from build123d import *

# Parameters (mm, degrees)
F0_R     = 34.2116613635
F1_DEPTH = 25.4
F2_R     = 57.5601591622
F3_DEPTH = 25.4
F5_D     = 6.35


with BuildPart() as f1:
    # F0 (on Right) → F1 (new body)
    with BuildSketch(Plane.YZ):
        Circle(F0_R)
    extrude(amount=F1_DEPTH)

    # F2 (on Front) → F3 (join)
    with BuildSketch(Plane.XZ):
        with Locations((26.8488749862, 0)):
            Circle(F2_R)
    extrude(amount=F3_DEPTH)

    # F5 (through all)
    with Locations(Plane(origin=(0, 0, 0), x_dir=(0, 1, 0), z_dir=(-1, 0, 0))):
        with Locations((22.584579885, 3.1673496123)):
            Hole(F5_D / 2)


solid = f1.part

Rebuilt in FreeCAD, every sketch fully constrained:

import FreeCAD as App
import Part
import Sketcher
from FreeCAD import Vector
Q = App.Units.Quantity

doc = App.newDocument("Part")
params = doc.addObject("Spreadsheet::Sheet", "Params")
for row, (alias, value) in enumerate([
    ("pad1_length", "1 in"),
    ("pad2_length", "1 in"),
    ("sketch3_diameter", "0.25 in"),
    ("hole_diameter", "0.25 in"),
], start=1):
    params.set(f"A{row}", alias)
    params.set(f"B{row}", "=" + value)
    params.setAlias(f"B{row}", alias)

body = doc.addObject("PartDesign::Body", "Body")

sketch1 = doc.addObject("Sketcher::SketchObject", "Sketch")
body.addObject(sketch1)
sketch1.AttachmentSupport = (doc.YZ_Plane, [""])
sketch1.MapMode = "FlatFace"
sketch1.addGeometry(Part.Circle(Vector(0, 0, 0), Vector(0, 0, 1), 34), False)
sketch1.addConstraint(Sketcher.Constraint("Coincident", 0, 3, -1, 1))
sketch1.addConstraint(Sketcher.Constraint("Diameter", 0, Q("68.423323 mm")))
pad1 = doc.addObject("PartDesign::Pad", "Pad")
body.addObject(pad1)
pad1.Profile = sketch1
pad1.setExpression("Length", "Params.pad1_length")

sketch2 = doc.addObject("Sketcher::SketchObject", "Sketch001")
body.addObject(sketch2)
sketch2.AttachmentSupport = (doc.XZ_Plane, [""])
sketch2.MapMode = "FlatFace"
sketch2.addGeometry(Part.Circle(Vector(27, 0, 0), Vector(0, 0, 1), 58), False)
sketch2.addConstraint(Sketcher.Constraint("PointOnObject", 0, 3, -1))
sketch2.addConstraint(Sketcher.Constraint("Diameter", 0, Q("115.120318 mm")))
sketch2.addConstraint(Sketcher.Constraint("DistanceX", -1, 1, 0, 3, Q("26.848875 mm")))
pad2 = doc.addObject("PartDesign::Pad", "Pad001")
body.addObject(pad2)
pad2.Profile = sketch2
pad2.setExpression("Length", "Params.pad2_length")

sketch3 = doc.addObject("Sketcher::SketchObject", "Sketch002")
body.addObject(sketch3)
sketch3.AttachmentSupport = (doc.YZ_Plane, [""])
sketch3.MapMode = "FlatFace"
sketch3.addGeometry(Part.Circle(Vector(22.6, -3.2, 0), Vector(0, 0, 1), 3.2), False)
sketch3.addConstraint(Sketcher.Constraint("Diameter", 0, Q("0.25 in")))
sketch3.addConstraint(Sketcher.Constraint("DistanceX", -1, 1, 0, 3, Q("22.58458 mm")))
sketch3.addConstraint(Sketcher.Constraint("DistanceY", 0, 3, -1, 1, Q("3.16735 mm")))
sketch3.setExpression("Constraints[0]", "Params.sketch3_diameter")
doc.recompute()
hole = doc.addObject("PartDesign::Hole", "Hole")
body.addObject(hole)
hole.Profile = sketch3
hole.ThreadType = "None"
hole.setExpression("Diameter", "Params.hole_diameter")
hole.DepthType = "ThroughAll"
hole.Reversed = True

doc.recompute()
